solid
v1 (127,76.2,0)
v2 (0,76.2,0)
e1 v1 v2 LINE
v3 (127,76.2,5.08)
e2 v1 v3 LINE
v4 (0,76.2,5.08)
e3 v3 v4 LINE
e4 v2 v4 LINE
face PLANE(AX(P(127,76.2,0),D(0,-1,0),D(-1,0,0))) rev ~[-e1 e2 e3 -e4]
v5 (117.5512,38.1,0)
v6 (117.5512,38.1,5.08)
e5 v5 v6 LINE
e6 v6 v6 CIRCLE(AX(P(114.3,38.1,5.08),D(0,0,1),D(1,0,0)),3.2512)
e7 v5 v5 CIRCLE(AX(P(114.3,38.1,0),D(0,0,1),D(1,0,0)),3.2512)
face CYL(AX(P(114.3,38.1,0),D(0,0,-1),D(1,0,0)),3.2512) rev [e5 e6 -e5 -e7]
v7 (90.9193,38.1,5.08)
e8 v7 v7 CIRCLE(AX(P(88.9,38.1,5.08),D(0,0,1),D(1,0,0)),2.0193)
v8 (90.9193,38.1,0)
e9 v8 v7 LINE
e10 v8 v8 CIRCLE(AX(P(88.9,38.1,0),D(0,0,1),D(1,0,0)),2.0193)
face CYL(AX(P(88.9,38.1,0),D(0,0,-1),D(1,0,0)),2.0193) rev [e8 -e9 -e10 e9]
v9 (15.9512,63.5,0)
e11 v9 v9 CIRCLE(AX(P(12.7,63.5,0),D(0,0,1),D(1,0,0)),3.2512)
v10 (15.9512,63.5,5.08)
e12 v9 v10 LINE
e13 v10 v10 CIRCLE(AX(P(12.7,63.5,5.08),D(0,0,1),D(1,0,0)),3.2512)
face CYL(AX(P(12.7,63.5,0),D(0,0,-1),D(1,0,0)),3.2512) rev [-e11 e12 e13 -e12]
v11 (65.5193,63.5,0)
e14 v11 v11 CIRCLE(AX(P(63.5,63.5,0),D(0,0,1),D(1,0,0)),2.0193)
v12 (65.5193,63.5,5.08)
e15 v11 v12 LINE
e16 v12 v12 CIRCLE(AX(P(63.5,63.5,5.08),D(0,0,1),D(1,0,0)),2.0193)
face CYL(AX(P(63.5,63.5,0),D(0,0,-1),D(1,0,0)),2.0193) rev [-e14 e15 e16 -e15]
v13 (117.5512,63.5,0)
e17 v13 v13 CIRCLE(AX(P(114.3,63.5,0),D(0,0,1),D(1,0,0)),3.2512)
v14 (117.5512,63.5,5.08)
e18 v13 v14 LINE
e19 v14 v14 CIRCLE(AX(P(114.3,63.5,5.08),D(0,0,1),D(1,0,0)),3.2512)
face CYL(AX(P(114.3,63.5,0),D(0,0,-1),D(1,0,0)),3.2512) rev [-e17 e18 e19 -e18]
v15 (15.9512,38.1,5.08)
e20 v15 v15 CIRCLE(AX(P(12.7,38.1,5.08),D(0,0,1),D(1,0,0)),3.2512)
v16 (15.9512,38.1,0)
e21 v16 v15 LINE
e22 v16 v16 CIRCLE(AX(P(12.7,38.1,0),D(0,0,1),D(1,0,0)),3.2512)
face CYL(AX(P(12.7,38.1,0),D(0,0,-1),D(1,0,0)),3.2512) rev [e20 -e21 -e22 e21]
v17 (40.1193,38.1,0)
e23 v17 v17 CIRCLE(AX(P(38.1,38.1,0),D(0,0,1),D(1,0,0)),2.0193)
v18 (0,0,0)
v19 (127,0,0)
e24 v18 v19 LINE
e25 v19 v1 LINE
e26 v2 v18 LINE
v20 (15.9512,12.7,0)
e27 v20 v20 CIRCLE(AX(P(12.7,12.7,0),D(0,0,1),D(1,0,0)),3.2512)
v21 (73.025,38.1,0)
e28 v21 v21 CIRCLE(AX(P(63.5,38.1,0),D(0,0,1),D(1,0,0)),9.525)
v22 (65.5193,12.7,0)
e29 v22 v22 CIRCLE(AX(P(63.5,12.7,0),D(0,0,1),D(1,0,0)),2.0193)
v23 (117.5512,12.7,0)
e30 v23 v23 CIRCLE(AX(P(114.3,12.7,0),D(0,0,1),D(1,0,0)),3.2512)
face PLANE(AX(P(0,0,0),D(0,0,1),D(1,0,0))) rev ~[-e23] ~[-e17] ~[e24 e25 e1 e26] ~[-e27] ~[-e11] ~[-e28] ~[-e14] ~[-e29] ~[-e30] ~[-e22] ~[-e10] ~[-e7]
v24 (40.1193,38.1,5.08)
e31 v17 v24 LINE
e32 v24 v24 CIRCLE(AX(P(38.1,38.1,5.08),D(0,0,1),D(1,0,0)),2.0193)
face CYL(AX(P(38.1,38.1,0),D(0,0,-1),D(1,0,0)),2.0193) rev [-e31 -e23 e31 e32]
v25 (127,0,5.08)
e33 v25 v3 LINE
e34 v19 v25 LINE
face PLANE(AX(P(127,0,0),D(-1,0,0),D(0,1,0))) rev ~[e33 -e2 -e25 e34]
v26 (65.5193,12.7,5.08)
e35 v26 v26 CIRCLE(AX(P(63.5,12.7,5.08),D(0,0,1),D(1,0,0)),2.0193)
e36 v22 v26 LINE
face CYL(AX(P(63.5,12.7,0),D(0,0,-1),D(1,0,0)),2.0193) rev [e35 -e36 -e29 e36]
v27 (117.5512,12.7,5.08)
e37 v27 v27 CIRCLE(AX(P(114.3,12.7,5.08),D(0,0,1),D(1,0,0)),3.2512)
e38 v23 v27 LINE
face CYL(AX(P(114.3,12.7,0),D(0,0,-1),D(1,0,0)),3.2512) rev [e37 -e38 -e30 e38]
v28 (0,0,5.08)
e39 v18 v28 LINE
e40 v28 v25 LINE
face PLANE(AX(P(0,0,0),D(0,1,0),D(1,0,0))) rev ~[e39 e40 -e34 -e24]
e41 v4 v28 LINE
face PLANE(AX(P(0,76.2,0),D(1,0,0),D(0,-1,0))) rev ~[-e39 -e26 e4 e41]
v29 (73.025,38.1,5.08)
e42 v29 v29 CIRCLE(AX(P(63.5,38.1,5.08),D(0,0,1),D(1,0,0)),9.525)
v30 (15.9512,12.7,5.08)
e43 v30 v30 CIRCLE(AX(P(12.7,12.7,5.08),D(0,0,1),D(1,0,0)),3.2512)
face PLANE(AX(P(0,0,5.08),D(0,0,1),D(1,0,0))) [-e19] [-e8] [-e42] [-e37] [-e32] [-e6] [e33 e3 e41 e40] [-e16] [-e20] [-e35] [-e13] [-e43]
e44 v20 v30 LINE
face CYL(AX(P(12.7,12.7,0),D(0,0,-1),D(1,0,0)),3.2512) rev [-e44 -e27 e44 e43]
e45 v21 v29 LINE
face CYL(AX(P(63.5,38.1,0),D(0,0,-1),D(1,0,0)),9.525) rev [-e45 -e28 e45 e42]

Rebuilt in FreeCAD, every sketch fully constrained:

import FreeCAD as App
import Part
import Sketcher
from FreeCAD import Vector
Q = App.Units.Quantity


def add_polygon(sketch, points):
    """Adds a closed chain of lines whose ends are joined by coincident constraints."""
    first, n = sketch.GeometryCount, len(points)
    for a, b in zip(points, points[1:] + points[:1]):
        sketch.addGeometry(Part.LineSegment(App.Vector(*a, 0), App.Vector(*b, 0)), False)
    for i in range(n):
        sketch.addConstraint(Sketcher.Constraint("Coincident", first + i, 2, first + (i + 1) % n, 1))

doc = App.newDocument("Part")
body = doc.addObject("PartDesign::Body", "Body")

sketch1 = body.newObject("Sketcher::SketchObject", "Sketch")
sketch1.AttachmentSupport = (doc.getObject("XY_Plane"), [""])
sketch1.MapMode = "FlatFace"
add_polygon(sketch1, [(0, 76.2), (0, 0), (127, 0), (127, 76.2)])
sketch1.addGeometry(Part.Circle(Vector(12.7, 12.7, 0), Vector(0, 0, 1), 3.3), False)
sketch1.addGeometry(Part.Circle(Vector(63.5, 12.7, 0), Vector(0, 0, 1), 2), False)
sketch1.addGeometry(Part.Circle(Vector(114.3, 12.7, 0), Vector(0, 0, 1), 3.3), False)
sketch1.addGeometry(Part.Circle(Vector(12.7, 38.1, 0), Vector(0, 0, 1), 3.3), False)
sketch1.addGeometry(Part.Circle(Vector(38.1, 38.1, 0), Vector(0, 0, 1), 2), False)
sketch1.addGeometry(Part.Circle(Vector(12.7, 63.5, 0), Vector(0, 0, 1), 3.3), False)
sketch1.addGeometry(Part.Circle(Vector(63.5, 38.1, 0), Vector(0, 0, 1), 9.5), False)
sketch1.addGeometry(Part.Circle(Vector(88.9, 38.1, 0), Vector(0, 0, 1), 2), False)
sketch1.addGeometry(Part.Circle(Vector(114.3, 38.1, 0), Vector(0, 0, 1), 3.3), False)
sketch1.addGeometry(Part.Circle(Vector(63.5, 63.5, 0), Vector(0, 0, 1), 2), False)
sketch1.addGeometry(Part.Circle(Vector(114.3, 63.5, 0), Vector(0, 0, 1), 3.3), False)
sketch1.addConstraint(Sketcher.Constraint("Vertical", 0))
sketch1.addConstraint(Sketcher.Constraint("Horizontal", 1))
sketch1.addConstraint(Sketcher.Constraint("Vertical", 2))
sketch1.addConstraint(Sketcher.Constraint("Horizontal", 3))
sketch1.addConstraint(Sketcher.Constraint("Coincident", 0, 2, -1, 1))
sketch1.addConstraint(Sketcher.Constraint("Equal", 4, 6))
sketch1.addConstraint(Sketcher.Constraint("Equal", 6, 7))
sketch1.addConstraint(Sketcher.Constraint("Equal", 5, 8))
sketch1.addConstraint(Sketcher.Constraint("Equal", 7, 9))
sketch1.addConstraint(Sketcher.Constraint("Equal", 8, 11))
sketch1.addConstraint(Sketcher.Constraint("Equal", 9, 12))
sketch1.addConstraint(Sketcher.Constraint("Equal", 11, 13))
sketch1.addConstraint(Sketcher.Constraint("Equal", 12, 14))
sketch1.addConstraint(Sketcher.Constraint("Horizontal", 4, 3, 5, 3))
sketch1.addConstraint(Sketcher.Constraint("Horizontal", 5, 3, 6, 3))
sketch1.addConstraint(Sketcher.Constraint("Horizontal", 7, 3, 8, 3))
sketch1.addConstraint(Sketcher.Constraint("Horizontal", 8, 3, 10, 3))
sketch1.addConstraint(Sketcher.Constraint("Horizontal", 10, 3, 11, 3))
sketch1.addConstraint(Sketcher.Constraint("Horizontal", 11, 3, 12, 3))
sketch1.addConstraint(Sketcher.Constraint("Horizontal", 9, 3, 13, 3))
sketch1.addConstraint(Sketcher.Constraint("Horizontal", 13, 3, 14, 3))
sketch1.addConstraint(Sketcher.Constraint("Vertical", 4, 3, 7, 3))
sketch1.addConstraint(Sketcher.Constraint("Vertical", 7, 3, 9, 3))
sketch1.addConstraint(Sketcher.Constraint("Vertical", 5, 3, 10, 3))
sketch1.addConstraint(Sketcher.Constraint("Vertical", 6, 3, 12, 3))
sketch1.addConstraint(Sketcher.Constraint("Vertical", 10, 3, 13, 3))
sketch1.addConstraint(Sketcher.Constraint("Vertical", 12, 3, 14, 3))
sketch1.addConstraint(Sketcher.Constraint("Diameter", 10, Q("0.75 in")))
sketch1.addConstraint(Sketcher.Constraint("DistanceX", 1, 1, 1, 2, Q("5 in")))
sketch1.addConstraint(Sketcher.Constraint("DistanceY", 0, 2, 0, 1, Q("3 in")))
sketch1.addConstraint(Sketcher.Constraint("Diameter", 4, Q("0.256 in")))
sketch1.addConstraint(Sketcher.Constraint("Diameter", 5, Q("0.159 in")))
sketch1.addConstraint(Sketcher.Constraint("DistanceX", 4, 3, 5, 3, Q("2 in")))
sketch1.addConstraint(Sketcher.Constraint("DistanceX", 5, 3, 6, 3, Q("2 in")))
sketch1.addConstraint(Sketcher.Constraint("DistanceY", 4, 3, 7, 3, Q("1 in")))
sketch1.addConstraint(Sketcher.Constraint("DistanceX", 7, 3, 8, 3, Q("1 in")))
sketch1.addConstraint(Sketcher.Constraint("DistanceY", 7, 3, 9, 3, Q("1 in")))
sketch1.addConstraint(Sketcher.Constraint("DistanceX", 10, 3, 11, 3, Q("1 in")))
sketch1.addConstraint(Sketcher.Constraint("DistanceX", -1, 1, 4, 3, Q("0.5 in")))
sketch1.addConstraint(Sketcher.Constraint("DistanceY", -1, 1, 4, 3, Q("0.5 in")))
pad1 = body.newObject("PartDesign::Pad", "Pad")
pad1.Profile = sketch1
pad1.Length = Q("0.2 in")

doc.recompute()
